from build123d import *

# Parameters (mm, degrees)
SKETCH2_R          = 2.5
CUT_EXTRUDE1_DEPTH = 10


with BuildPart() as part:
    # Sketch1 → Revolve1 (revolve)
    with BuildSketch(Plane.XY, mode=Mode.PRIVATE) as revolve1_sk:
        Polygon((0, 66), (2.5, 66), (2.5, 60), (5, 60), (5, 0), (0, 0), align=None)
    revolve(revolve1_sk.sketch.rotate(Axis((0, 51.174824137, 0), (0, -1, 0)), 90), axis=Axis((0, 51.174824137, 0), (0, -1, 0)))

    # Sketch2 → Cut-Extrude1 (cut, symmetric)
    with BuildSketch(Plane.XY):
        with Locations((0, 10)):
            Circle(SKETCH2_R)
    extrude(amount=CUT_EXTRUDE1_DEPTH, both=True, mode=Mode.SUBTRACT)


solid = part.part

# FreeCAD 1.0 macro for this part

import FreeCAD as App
import Part
import Sketcher
from FreeCAD import Vector
Q = App.Units.Quantity


def add_polygon(sketch, points):
    """Adds a closed chain of lines whose ends are joined by coincident constraints."""
    first, n = sketch.GeometryCount, len(points)
    for a, b in zip(points, points[1:] + points[:1]):
        sketch.addGeometry(Part.LineSegment(App.Vector(*a, 0), App.Vector(*b, 0)), False)
    for i in range(n):
        sketch.addConstraint(Sketcher.Constraint("Coincident", first + i, 2, first + (i + 1) % n, 1))

doc = App.newDocument("Part")
body = doc.addObject("PartDesign::Body", "Body")

sketch1 = doc.addObject("Sketcher::SketchObject", "Sketch")
body.addObject(sketch1)
sketch1.AttachmentSupport = (doc.XY_Plane, [""])
sketch1.MapMode = "FlatFace"
add_polygon(sketch1, [(2.5, 66), (0, 66), (0, 0), (5, 0), (5, 60), (2.5, 60)])
sketch1.addConstraint([
    Sketcher.Constraint("Horizontal", 0),
    Sketcher.Constraint("Vertical", 1),
    Sketcher.Constraint("Horizontal", 2),
    Sketcher.Constraint("Vertical", 3),
    Sketcher.Constraint("Horizontal", 4),
    Sketcher.Constraint("Vertical", 5),
    Sketcher.Constraint("Coincident", 1, 2, -1, 1),
    Sketcher.Constraint("Equal", 0, 4),
    Sketcher.Constraint("DistanceX", 2, 1, 2, 2, Q("5 mm")),
    Sketcher.Constraint("DistanceY", 1, 2, 1, 1, Q("66 mm")),
    Sketcher.Constraint("DistanceY", 3, 1, 3, 2, Q("60 mm")),
])
revolution = doc.addObject("PartDesign::Revolution", "Revolution")
body.addObject(revolution)
revolution.Profile = sketch1
revolution.ReferenceAxis = (sketch1, ["V_Axis"])
revolution.Angle = 360

sketch2 = doc.addObject("Sketcher::SketchObject", "Sketch001")
body.addObject(sketch2)
sketch2.AttachmentSupport = (doc.XY_Plane, [""])
sketch2.MapMode = "FlatFace"
sketch2.addGeometry(Part.Circle(Vector(0, 10, 0), Vector(0, 0, 1), 2.5), False)
sketch2.addConstraint([
    Sketcher.Constraint("PointOnObject", 0, 3, -2),
    Sketcher.Constraint("Diameter", 0, Q("5 mm")),
    Sketcher.Constraint("DistanceY", -1, 1, 0, 3, Q("10 mm")),
])
pocket1 = doc.addObject("PartDesign::Pocket", "Pocket")
body.addObject(pocket1)
pocket1.Profile = sketch2
pocket1.Length = 20
pocket1.Midplane = True

doc.recompute()
